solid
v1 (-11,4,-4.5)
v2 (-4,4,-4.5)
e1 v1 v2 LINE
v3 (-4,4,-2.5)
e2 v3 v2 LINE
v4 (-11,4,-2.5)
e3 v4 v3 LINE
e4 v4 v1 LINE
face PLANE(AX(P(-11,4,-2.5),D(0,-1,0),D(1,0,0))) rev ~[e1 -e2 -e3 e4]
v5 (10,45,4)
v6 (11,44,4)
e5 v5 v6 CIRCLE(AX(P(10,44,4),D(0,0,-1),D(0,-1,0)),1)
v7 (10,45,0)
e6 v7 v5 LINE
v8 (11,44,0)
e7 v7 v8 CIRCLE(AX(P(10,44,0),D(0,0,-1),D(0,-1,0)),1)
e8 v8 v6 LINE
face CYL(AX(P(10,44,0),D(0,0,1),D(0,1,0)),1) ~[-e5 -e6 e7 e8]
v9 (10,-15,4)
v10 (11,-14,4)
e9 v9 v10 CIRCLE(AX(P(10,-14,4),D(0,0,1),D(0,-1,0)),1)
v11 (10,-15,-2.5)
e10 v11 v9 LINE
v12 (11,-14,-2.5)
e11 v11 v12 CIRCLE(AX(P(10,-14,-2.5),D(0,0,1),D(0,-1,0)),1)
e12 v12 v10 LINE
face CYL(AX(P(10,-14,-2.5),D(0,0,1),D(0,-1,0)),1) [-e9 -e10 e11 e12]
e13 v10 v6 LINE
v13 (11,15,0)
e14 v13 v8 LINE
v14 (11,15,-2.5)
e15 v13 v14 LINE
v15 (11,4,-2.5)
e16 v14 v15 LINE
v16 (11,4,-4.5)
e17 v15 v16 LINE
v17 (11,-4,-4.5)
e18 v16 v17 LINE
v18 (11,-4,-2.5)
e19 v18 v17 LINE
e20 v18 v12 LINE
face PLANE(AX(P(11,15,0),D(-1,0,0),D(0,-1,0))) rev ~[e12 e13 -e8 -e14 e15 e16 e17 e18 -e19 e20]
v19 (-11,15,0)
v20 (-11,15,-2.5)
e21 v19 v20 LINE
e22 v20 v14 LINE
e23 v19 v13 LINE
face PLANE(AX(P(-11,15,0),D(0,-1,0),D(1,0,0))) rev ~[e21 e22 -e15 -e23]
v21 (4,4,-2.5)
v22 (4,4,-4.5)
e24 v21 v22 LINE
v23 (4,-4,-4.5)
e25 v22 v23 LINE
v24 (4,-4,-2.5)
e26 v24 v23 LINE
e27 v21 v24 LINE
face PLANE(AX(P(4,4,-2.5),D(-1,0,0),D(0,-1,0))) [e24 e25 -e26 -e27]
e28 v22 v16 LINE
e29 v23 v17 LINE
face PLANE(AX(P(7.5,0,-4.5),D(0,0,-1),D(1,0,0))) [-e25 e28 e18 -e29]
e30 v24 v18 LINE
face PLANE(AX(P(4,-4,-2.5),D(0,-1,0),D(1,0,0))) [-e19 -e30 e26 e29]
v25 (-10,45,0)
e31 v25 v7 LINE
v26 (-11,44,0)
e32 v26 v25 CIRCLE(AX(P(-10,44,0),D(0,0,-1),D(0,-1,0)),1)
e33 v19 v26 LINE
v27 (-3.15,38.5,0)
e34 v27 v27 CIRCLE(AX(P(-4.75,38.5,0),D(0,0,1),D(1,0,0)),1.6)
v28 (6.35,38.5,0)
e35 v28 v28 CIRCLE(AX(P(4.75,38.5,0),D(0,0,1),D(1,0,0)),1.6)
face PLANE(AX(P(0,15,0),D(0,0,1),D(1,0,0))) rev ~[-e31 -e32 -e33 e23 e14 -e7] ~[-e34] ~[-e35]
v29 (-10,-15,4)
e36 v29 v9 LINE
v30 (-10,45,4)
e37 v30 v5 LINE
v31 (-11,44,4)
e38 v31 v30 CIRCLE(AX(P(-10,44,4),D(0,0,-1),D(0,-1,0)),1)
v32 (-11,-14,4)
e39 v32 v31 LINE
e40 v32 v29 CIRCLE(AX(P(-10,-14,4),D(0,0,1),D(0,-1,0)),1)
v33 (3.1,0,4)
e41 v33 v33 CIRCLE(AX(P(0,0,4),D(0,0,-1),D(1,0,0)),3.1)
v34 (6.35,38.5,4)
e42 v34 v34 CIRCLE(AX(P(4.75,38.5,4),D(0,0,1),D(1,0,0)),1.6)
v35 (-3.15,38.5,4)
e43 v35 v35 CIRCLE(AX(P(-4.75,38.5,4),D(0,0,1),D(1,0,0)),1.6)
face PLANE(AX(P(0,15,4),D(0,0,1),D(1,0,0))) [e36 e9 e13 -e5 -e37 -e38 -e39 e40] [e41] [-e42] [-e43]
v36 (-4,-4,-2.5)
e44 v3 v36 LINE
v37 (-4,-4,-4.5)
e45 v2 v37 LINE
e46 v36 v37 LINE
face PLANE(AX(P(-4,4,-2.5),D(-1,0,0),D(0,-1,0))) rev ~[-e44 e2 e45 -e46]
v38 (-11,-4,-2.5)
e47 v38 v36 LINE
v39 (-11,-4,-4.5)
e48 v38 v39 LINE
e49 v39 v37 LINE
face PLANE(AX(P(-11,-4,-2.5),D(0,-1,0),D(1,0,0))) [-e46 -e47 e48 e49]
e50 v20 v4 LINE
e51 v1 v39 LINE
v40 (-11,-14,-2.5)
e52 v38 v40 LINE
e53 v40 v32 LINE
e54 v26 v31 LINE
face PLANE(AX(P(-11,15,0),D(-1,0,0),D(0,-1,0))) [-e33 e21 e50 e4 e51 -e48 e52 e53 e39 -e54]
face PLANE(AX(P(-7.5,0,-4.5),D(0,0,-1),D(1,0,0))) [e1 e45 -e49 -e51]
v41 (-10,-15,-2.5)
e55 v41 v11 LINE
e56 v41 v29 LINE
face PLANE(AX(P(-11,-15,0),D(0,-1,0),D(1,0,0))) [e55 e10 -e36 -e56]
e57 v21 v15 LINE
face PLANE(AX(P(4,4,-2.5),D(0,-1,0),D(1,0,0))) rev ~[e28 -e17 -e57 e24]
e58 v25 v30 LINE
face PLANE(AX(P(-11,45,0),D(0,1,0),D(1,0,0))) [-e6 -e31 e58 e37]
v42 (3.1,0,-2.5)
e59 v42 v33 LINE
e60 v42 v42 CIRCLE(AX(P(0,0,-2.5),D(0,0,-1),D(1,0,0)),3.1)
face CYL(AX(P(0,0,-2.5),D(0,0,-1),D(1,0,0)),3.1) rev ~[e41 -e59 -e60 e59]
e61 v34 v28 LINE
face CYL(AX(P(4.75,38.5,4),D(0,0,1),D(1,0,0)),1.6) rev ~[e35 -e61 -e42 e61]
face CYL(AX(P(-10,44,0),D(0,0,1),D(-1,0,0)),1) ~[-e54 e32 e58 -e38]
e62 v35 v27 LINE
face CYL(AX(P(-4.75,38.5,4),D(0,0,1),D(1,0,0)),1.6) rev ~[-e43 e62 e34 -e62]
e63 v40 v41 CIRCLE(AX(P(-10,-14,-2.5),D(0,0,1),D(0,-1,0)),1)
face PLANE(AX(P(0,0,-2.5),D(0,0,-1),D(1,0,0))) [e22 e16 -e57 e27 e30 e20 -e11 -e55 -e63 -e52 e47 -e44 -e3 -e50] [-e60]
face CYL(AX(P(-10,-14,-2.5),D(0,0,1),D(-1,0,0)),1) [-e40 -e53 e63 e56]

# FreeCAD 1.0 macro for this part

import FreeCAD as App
import Part
import Sketcher

V = App.Vector


def edges_at(feature, points):
    """Names of the edges that pass closest to the given points."""
    edges = feature.Shape.Edges
    near = lambda p: min(range(len(edges)), key=lambda i: edges[i].distToShape(Part.Vertex(*p))[0])
    return sorted({f"Edge{near(p) + 1}" for p in points})


def add_polygon(sketch, points):
    """Adds a closed chain of lines whose ends are joined by coincident constraints."""
    first, n = sketch.GeometryCount, len(points)
    for a, b in zip(points, points[1:] + points[:1]):
        sketch.addGeometry(Part.LineSegment(App.Vector(*a, 0), App.Vector(*b, 0)), False)
    for i in range(n):
        sketch.addConstraint(Sketcher.Constraint("Coincident", first + i, 2, first + (i + 1) % n, 1))

doc = App.newDocument("Part")
body = doc.addObject("PartDesign::Body", "Body")

# Sketch on XY plane
sketch1 = doc.addObject("Sketcher::SketchObject", "Sketch")
body.addObject(sketch1)
sketch1.AttachmentSupport = (doc.XY_Plane, [""])
sketch1.MapMode = "FlatFace"
add_polygon(sketch1, [(-11, 45), (-11, -15), (11, -15), (11, 45)])  # lines 0-3
sketch1.addConstraint([
    Sketcher.Constraint("Vertical", 0),
    Sketcher.Constraint("Horizontal", 1),
    Sketcher.Constraint("Vertical", 2),
    Sketcher.Constraint("Horizontal", 3),
    Sketcher.Constraint("DistanceX", 1, 1, 1, 2, 22.0),
    Sketcher.Constraint("DistanceY", 0, 2, 0, 1, 60.0),
    Sketcher.Constraint("DistanceX", 0, 2, -1, 1, 11.0),
    Sketcher.Constraint("DistanceY", 0, 2, -1, 1, 15.0),
])
pad1 = doc.addObject("PartDesign::Pad", "Pad")
body.addObject(pad1)
pad1.Profile = sketch1
pad1.Length = 4

# Sketch on XY plane
sketch2 = doc.addObject("Sketcher::SketchObject", "Sketch001")
body.addObject(sketch2)
sketch2.AttachmentSupport = (doc.XY_Plane, [""])
sketch2.MapMode = "FlatFace"
add_polygon(sketch2, [(-11, -15), (-11, 15), (11, 15), (11, -15)])  # lines 0-3
sketch2.addConstraint([
    Sketcher.Constraint("Vertical", 0),
    Sketcher.Constraint("Horizontal", 1),
    Sketcher.Constraint("Vertical", 2),
    Sketcher.Constraint("Horizontal", 3),
    Sketcher.Constraint("Symmetric", 0, 2, 2, 2, -1, 1),
    Sketcher.Constraint("DistanceX", 1, 1, 1, 2, 22.0),
    Sketcher.Constraint("DistanceY", 0, 1, 0, 2, 30.0),
])
pad2 = doc.addObject("PartDesign::Pad", "Pad001")
body.addObject(pad2)
pad2.Profile = sketch2
pad2.Length = 2.5
pad2.Reversed = True

# Sketch on XY plane
sketch3 = doc.addObject("Sketcher::SketchObject", "Sketch002")
body.addObject(sketch3)
sketch3.AttachmentSupport = (doc.XY_Plane, [""])
sketch3.MapMode = "FlatFace"
sketch3.AttachmentOffset = App.Placement(V(0, 0, -2.5), App.Rotation())
add_polygon(sketch3, [(-11, -4), (-11, 4), (-4, 4), (-4, -4)])  # lines 0-3
add_polygon(sketch3, [(4, -4), (4, 4), (11, 4), (11, -4)])  # lines 4-7
sketch3.addConstraint([
    Sketcher.Constraint("Vertical", 0),
    Sketcher.Constraint("Horizontal", 1),
    Sketcher.Constraint("Vertical", 2),
    Sketcher.Constraint("Horizontal", 3),
    Sketcher.Constraint("Vertical", 4),
    Sketcher.Constraint("Horizontal", 5),
    Sketcher.Constraint("Vertical", 6),
    Sketcher.Constraint("Horizontal", 7),
    Sketcher.Constraint("Symmetric", 2, 2, 4, 2, -1, 1),
    Sketcher.Constraint("Symmetric", 0, 2, 6, 2, -1, 1),
    Sketcher.Constraint("Horizontal", 1, 2, 4, 2),
    Sketcher.Constraint("DistanceX", 1, 1, 1, 2, 7.0),
    Sketcher.Constraint("DistanceY", 0, 1, 0, 2, 8.0),
    Sketcher.Constraint("DistanceX", 0, 2, -1, 1, 11.0),
])
pad3 = doc.addObject("PartDesign::Pad", "Pad002")
body.addObject(pad3)
pad3.Profile = sketch3
pad3.Length = 2
pad3.Reversed = True

# Sketch on XY plane
sketch4 = doc.addObject("Sketcher::SketchObject", "Sketch003")
body.addObject(sketch4)
sketch4.AttachmentSupport = (doc.XY_Plane, [""])
sketch4.MapMode = "FlatFace"
sketch4.AttachmentOffset = App.Placement(V(0, 0, -2.5), App.Rotation())
sketch4.addGeometry(Part.Circle(V(0, 0, 0), V(0, 0, 1), 3.1), False)
sketch4.addConstraint([
    Sketcher.Constraint("Coincident", 0, 3, -1, 1),
    Sketcher.Constraint("Diameter", 0, 6.2),
])
pocket1 = doc.addObject("PartDesign::Pocket", "Pocket")
body.addObject(pocket1)
pocket1.Profile = sketch4
pocket1.Type = "ThroughAll"
pocket1.Reversed = True

# Sketch on XY plane
sketch5 = doc.addObject("Sketcher::SketchObject", "Sketch004")
body.addObject(sketch5)
sketch5.AttachmentSupport = (doc.XY_Plane, [""])
sketch5.MapMode = "FlatFace"
sketch5.AttachmentOffset = App.Placement(V(0, 0, 4), App.Rotation())
sketch5.addGeometry([
    Part.Circle(V(-4.8, 38.5, 0), V(0, 0, 1), 1.6),
    Part.Circle(V(4.8, 38.5, 0), V(0, 0, 1), 1.6),
], False)
sketch5.addConstraint([
    Sketcher.Constraint("Equal", 0, 1),
    Sketcher.Constraint("Symmetric", 0, 3, 1, 3, -2),
    Sketcher.Constraint("Diameter", 0, 3.2),
    Sketcher.Constraint("DistanceY", -1, 1, 0, 3, 38.5),
    Sketcher.Constraint("DistanceX", 0, 3, 1, 3, 9.5),
])
pocket2 = doc.addObject("PartDesign::Pocket", "Pocket001")
body.addObject(pocket2)
pocket2.Profile = sketch5
pocket2.Type = "ThroughAll"
doc.recompute()

fillet = doc.addObject("PartDesign::Fillet", "Fillet")
body.addObject(fillet)
fillet.Base = (pocket2, edges_at(pocket2, [
    (-11, -15, 0.75),
    (11, -15, 0.75),
    (-11, 45, 2),
    (11, 45, 2),
]))
fillet.Radius = 1

doc.recompute()
